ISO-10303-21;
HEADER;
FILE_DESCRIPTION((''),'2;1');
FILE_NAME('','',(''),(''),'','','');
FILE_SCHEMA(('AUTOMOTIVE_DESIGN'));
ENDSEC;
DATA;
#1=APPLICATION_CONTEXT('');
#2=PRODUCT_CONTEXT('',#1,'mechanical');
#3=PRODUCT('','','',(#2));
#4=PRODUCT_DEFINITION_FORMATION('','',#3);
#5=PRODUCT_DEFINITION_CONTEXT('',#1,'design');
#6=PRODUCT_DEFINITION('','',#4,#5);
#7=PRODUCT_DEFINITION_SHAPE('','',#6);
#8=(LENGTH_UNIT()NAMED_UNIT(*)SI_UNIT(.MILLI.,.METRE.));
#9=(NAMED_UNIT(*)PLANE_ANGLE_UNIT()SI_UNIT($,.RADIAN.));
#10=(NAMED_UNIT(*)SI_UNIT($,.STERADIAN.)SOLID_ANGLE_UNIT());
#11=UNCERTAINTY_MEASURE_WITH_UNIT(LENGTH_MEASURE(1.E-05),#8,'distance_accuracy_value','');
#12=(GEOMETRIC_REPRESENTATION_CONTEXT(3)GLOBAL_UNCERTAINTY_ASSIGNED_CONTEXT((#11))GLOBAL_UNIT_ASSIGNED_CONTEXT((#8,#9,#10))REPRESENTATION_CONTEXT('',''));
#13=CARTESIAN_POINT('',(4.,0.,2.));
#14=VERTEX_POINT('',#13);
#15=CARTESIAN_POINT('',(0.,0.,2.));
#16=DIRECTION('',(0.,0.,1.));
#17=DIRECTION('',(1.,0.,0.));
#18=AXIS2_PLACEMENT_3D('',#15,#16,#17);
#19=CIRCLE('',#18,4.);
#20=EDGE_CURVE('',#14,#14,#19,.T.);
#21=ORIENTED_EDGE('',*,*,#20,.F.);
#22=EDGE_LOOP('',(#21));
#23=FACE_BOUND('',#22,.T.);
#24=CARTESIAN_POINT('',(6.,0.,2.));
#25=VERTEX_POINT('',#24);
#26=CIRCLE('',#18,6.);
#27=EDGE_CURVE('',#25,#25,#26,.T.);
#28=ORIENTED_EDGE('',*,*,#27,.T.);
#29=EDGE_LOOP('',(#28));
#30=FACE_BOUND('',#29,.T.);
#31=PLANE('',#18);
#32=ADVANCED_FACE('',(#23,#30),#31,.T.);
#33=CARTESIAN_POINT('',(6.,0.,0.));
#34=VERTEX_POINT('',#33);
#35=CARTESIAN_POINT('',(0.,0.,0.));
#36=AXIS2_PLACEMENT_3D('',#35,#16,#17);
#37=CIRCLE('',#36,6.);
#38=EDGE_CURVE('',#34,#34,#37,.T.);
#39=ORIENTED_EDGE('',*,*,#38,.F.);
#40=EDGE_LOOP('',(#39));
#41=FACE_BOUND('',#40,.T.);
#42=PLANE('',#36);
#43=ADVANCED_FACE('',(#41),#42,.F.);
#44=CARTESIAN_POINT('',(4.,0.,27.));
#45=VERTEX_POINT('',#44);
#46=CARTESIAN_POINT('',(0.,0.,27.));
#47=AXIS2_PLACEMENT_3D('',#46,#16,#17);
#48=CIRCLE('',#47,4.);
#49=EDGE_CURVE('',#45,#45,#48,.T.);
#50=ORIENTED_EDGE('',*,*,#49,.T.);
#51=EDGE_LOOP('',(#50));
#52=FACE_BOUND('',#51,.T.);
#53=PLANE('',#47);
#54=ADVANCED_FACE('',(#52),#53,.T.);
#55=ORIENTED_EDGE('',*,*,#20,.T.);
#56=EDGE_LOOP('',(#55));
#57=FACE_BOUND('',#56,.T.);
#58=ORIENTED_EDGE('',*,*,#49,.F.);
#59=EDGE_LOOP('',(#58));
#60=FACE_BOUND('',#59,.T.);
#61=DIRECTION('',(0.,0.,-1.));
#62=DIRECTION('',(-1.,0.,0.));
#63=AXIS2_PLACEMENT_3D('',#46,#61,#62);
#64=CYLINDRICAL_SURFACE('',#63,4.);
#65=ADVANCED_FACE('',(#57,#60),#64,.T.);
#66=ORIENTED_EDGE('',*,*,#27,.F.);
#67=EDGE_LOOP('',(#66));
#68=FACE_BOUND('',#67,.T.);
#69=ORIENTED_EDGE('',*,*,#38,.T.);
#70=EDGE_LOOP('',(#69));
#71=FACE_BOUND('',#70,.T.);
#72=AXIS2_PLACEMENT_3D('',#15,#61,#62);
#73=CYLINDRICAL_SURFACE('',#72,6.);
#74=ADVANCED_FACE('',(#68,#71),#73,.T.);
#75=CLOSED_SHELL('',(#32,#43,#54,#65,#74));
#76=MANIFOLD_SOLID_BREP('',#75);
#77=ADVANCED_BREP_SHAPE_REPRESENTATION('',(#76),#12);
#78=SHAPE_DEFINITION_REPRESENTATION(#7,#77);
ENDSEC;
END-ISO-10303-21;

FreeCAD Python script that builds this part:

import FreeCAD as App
import Part
import Sketcher
from FreeCAD import Vector
Q = App.Units.Quantity

doc = App.newDocument("Part")
params = doc.addObject("Spreadsheet::Sheet", "Params")
for row, (alias, value) in enumerate([
    ("sketch1_diameter", "12 mm"),
    ("pad1_length", "2 mm"),
    ("sketch2_diameter", "8 mm"),
    ("pad2_length", "25 mm"),
], start=1):
    params.set(f"A{row}", alias)
    params.set(f"B{row}", "=" + value)
    params.setAlias(f"B{row}", alias)

body = doc.addObject("PartDesign::Body", "Body")

sketch1 = body.newObject("Sketcher::SketchObject", "Sketch")
sketch1.AttachmentSupport = (doc.getObject("XY_Plane"), [""])
sketch1.MapMode = "FlatFace"
sketch1.addGeometry(Part.Circle(Vector(0, 0, 0), Vector(0, 0, 1), 6), False)
sketch1.addConstraint(Sketcher.Constraint("Coincident", 0, 3, -1, 1))
sketch1.addConstraint(Sketcher.Constraint("Diameter", 0, Q("12 mm")))
sketch1.setExpression("Constraints[1]", "Params.sketch1_diameter")
pad1 = body.newObject("PartDesign::Pad", "Pad")
pad1.Profile = sketch1
pad1.setExpression("Length", "Params.pad1_length")

sketch2 = body.newObject("Sketcher::SketchObject", "Sketch001")
sketch2.AttachmentSupport = (doc.getObject("XY_Plane"), [""])
sketch2.MapMode = "FlatFace"
sketch2.AttachmentOffset = App.Placement(Vector(0, 0, 2), App.Rotation())
sketch2.addGeometry(Part.Circle(Vector(0, 0, 0), Vector(0, 0, 1), 4), False)
sketch2.addConstraint(Sketcher.Constraint("Coincident", 0, 3, -1, 1))
sketch2.addConstraint(Sketcher.Constraint("Diameter", 0, Q("8 mm")))
sketch2.setExpression("Constraints[1]", "Params.sketch2_diameter")
pad2 = body.newObject("PartDesign::Pad", "Pad001")
pad2.Profile = sketch2
pad2.setExpression("Length", "Params.pad2_length")

doc.recompute()
